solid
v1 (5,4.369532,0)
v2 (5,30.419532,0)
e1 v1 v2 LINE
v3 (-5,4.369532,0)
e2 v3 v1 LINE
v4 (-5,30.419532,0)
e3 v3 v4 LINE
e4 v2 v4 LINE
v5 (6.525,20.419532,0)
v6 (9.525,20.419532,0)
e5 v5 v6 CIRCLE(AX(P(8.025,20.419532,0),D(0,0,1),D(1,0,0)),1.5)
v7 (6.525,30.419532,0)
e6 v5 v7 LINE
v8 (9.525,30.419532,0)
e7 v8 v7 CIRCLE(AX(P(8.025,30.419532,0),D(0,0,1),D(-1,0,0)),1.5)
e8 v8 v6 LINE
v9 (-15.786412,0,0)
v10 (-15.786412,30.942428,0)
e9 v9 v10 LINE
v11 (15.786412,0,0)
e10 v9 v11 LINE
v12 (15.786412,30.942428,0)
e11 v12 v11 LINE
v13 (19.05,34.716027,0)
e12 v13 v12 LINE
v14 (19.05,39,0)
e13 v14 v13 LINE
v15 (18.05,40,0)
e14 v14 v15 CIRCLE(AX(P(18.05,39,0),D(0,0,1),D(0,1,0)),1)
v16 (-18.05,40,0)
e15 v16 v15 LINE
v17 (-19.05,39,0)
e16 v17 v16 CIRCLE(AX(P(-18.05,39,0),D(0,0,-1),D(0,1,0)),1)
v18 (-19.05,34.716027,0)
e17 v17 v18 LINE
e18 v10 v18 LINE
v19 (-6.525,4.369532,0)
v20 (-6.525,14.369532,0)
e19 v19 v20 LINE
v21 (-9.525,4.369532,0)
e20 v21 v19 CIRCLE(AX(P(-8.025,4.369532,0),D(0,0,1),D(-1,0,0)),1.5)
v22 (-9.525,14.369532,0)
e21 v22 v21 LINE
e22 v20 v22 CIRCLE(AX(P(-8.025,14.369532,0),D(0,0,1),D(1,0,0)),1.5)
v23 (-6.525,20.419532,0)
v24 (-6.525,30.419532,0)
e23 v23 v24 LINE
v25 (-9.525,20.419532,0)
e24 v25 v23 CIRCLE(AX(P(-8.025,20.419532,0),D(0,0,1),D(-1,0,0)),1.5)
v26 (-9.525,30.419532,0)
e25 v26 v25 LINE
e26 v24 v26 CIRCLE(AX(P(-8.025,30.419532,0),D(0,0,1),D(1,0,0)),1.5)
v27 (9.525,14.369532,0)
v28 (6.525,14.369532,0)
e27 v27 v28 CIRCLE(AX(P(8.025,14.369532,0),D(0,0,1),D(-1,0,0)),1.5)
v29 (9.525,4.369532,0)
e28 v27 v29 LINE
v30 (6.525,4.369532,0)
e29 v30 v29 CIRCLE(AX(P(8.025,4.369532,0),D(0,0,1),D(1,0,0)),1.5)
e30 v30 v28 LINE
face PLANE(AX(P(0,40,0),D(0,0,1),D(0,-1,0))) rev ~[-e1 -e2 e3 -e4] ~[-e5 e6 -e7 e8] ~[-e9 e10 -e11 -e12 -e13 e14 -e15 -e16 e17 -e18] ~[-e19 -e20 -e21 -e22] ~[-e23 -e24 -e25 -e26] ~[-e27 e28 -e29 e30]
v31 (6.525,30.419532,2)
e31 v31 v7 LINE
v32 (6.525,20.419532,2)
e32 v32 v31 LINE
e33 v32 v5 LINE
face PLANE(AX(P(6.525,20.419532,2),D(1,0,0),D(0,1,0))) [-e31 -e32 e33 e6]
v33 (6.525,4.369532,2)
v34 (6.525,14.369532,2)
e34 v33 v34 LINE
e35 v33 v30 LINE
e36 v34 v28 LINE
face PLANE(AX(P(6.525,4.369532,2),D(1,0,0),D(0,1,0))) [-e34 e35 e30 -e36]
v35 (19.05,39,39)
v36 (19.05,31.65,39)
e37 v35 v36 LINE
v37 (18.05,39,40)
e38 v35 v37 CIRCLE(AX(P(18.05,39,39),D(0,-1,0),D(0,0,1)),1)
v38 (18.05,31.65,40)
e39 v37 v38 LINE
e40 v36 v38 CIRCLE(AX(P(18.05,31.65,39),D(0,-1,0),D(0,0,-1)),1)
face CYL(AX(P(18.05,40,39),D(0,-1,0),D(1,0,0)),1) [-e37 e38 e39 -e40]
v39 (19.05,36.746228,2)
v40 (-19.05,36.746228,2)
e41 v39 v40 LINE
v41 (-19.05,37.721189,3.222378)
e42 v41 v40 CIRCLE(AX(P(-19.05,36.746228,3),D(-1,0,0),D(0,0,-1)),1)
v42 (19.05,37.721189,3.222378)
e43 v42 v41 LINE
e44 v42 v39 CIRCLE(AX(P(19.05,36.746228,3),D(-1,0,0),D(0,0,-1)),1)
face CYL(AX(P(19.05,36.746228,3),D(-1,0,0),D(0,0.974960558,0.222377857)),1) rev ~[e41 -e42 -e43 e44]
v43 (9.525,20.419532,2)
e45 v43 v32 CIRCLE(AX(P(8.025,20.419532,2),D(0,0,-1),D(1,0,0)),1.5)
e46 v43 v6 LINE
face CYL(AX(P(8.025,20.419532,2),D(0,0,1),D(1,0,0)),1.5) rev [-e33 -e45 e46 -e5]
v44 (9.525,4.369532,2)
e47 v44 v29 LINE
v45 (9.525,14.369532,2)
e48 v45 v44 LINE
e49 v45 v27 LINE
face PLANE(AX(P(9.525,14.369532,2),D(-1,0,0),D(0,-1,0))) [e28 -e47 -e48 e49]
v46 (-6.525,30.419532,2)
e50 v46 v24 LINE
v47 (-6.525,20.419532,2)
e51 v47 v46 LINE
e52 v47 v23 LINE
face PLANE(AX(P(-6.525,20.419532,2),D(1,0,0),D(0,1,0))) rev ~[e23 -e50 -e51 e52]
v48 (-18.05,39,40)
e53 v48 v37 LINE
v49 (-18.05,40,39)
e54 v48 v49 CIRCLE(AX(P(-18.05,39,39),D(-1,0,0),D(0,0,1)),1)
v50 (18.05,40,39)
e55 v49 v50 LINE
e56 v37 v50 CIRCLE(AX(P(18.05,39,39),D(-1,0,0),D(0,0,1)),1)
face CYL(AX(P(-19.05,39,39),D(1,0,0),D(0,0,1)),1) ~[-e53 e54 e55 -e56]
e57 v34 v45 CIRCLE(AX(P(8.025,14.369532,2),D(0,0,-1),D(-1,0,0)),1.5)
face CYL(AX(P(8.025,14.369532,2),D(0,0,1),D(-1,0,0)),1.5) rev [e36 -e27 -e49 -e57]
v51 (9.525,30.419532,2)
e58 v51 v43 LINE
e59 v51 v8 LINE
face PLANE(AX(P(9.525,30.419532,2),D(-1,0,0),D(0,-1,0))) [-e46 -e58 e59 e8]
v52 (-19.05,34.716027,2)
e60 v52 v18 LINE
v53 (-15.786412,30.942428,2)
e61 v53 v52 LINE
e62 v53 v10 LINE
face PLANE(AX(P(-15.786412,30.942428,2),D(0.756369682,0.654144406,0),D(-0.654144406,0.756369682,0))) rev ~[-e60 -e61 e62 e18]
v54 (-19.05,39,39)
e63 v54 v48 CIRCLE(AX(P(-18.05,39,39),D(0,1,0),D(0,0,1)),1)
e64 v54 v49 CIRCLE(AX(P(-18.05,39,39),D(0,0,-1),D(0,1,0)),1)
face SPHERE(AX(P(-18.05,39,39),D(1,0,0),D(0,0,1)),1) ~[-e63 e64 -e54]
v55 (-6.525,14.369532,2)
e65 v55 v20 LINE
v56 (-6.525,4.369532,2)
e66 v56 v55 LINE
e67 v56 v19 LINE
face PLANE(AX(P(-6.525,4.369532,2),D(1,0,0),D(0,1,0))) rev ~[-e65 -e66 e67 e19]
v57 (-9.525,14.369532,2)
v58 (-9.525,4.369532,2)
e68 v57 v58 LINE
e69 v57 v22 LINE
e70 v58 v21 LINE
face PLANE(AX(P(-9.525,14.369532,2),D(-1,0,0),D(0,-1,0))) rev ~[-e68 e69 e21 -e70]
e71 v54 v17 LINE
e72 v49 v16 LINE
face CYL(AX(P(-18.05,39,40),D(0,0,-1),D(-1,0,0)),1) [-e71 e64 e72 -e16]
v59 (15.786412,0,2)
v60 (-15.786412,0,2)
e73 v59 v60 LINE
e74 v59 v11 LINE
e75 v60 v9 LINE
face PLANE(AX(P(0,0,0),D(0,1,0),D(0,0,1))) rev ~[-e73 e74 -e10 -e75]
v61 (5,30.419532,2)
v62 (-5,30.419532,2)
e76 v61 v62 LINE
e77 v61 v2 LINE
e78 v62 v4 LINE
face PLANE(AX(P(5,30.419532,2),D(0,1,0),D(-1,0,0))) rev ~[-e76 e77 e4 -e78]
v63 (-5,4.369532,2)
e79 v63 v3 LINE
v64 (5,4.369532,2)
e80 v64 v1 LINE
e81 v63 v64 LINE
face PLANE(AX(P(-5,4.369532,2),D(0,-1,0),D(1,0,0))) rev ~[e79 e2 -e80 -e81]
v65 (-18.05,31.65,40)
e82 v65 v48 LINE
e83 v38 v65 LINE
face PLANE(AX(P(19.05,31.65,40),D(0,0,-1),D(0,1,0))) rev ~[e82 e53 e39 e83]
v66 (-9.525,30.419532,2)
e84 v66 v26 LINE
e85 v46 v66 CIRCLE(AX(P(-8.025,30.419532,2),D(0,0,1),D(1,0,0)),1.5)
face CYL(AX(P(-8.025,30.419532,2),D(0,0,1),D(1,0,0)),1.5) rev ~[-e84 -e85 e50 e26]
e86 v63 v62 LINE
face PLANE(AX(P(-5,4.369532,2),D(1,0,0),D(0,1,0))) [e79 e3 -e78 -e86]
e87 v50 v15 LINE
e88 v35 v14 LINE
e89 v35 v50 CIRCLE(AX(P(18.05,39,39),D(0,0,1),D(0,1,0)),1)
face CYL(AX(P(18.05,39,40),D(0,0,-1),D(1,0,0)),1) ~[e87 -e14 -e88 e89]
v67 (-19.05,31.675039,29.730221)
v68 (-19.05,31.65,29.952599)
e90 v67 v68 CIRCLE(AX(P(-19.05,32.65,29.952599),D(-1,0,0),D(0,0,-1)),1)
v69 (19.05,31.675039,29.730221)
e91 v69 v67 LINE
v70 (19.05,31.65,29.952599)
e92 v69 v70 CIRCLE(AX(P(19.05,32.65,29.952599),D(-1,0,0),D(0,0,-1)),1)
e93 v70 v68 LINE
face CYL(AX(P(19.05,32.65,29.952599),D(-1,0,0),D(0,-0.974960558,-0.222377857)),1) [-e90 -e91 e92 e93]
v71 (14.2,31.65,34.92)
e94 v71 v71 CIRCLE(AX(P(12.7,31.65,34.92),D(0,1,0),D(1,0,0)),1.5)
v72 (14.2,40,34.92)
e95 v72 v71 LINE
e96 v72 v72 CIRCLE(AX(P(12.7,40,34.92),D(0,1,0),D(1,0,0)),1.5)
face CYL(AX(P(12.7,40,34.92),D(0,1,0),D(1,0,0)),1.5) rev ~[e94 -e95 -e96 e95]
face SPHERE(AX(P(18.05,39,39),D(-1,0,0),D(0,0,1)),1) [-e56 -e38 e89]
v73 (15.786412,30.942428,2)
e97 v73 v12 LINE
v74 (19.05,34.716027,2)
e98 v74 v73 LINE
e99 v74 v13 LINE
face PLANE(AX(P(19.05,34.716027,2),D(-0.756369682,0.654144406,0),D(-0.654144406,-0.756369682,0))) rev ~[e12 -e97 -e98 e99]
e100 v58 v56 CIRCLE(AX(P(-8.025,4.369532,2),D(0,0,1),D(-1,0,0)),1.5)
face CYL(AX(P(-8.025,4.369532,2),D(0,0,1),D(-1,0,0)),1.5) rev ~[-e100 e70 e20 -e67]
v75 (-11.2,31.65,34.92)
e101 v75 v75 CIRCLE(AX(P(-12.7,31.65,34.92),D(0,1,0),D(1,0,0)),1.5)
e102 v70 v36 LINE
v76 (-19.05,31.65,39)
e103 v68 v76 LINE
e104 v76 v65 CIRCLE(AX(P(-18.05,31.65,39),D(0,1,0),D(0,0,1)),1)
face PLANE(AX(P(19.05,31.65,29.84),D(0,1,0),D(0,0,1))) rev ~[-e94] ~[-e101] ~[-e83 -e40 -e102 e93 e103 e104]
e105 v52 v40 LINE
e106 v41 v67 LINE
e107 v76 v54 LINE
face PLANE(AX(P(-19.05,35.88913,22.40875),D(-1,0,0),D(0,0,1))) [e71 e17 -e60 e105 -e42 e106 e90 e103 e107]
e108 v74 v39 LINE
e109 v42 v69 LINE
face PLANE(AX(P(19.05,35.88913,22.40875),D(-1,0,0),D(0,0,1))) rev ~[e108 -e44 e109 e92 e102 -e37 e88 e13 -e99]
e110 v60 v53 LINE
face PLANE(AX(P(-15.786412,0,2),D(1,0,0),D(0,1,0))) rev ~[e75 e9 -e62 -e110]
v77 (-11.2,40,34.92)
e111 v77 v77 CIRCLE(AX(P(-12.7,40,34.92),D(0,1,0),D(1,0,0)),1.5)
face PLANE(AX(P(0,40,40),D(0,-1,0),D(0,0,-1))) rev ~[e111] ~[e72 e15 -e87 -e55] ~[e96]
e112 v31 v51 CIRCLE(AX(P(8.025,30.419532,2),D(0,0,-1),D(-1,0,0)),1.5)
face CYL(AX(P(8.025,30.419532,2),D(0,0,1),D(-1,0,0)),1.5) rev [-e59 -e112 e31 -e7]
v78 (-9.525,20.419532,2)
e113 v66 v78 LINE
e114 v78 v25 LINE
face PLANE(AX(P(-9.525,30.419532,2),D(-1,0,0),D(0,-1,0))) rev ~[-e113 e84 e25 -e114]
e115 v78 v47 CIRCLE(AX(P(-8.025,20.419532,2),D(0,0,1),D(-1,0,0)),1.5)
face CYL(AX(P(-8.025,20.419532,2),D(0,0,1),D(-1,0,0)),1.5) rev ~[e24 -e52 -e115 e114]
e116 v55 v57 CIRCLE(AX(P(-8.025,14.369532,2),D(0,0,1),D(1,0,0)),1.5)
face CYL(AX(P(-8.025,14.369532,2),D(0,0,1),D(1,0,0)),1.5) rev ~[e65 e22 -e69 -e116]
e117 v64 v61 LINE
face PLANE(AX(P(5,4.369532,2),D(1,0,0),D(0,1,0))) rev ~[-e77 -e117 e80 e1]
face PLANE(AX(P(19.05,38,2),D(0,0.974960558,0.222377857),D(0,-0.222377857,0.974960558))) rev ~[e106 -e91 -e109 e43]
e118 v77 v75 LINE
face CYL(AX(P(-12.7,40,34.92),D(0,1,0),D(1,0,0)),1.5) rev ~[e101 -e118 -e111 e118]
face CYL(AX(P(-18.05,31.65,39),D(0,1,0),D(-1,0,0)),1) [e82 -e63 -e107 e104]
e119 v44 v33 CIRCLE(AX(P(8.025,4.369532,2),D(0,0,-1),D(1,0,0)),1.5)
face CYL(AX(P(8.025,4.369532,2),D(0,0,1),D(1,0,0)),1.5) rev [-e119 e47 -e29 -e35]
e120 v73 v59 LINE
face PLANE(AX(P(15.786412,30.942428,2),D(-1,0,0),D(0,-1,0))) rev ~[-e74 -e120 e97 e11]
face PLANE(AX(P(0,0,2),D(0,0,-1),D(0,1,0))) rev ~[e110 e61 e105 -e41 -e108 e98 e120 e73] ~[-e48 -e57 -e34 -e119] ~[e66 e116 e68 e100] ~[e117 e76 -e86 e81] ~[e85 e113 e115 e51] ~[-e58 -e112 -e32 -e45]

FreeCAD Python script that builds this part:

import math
import FreeCAD as App
import Part
import Sketcher
Q = App.Units.Quantity


def edges_at(feature, points):
    """Names of the edges that pass closest to the given points."""
    edges = feature.Shape.Edges
    near = lambda p: min(range(len(edges)), key=lambda i: edges[i].distToShape(Part.Vertex(*p))[0])
    return sorted({f"Edge{near(p) + 1}" for p in points})

doc = App.newDocument("Part")
body = doc.addObject("PartDesign::Body", "Body")

# Sketch on YZ plane
sketch1 = doc.addObject("Sketcher::SketchObject", "Sketch")
body.addObject(sketch1)
sketch1.AttachmentSupport = (doc.YZ_Plane, [""])
sketch1.MapMode = "FlatFace"
sketch1.addGeometry([
    Part.LineSegment(App.Vector(0, 2, 0), App.Vector(0, 0, 0)),  # 0
    Part.LineSegment(App.Vector(0, 0, 0), App.Vector(40, 0, 0)),  # 1
    Part.LineSegment(App.Vector(40, 0, 0), App.Vector(40, 40, 0)),  # 2
    Part.LineSegment(App.Vector(40, 40, 0), App.Vector(38, 40, 0)),  # 3
    Part.LineSegment(App.Vector(38, 40, 0), App.Vector(38, 2, 0)),  # 4
    Part.LineSegment(App.Vector(38, 2, 0), App.Vector(0, 2, 0)),  # 5
], False)
sketch1.addConstraint([
    Sketcher.Constraint("Coincident", 0, 2, 1, 1),
    Sketcher.Constraint("Coincident", 1, 2, 2, 1),
    Sketcher.Constraint("Coincident", 2, 2, 3, 1),
    Sketcher.Constraint("Coincident", 3, 2, 4, 1),
    Sketcher.Constraint("Coincident", 4, 2, 5, 1),
    Sketcher.Constraint("Coincident", 5, 2, 0, 1),
    Sketcher.Constraint("Vertical", 0),
    Sketcher.Constraint("Horizontal", 1),
    Sketcher.Constraint("Vertical", 2),
    Sketcher.Constraint("Horizontal", 3),
    Sketcher.Constraint("Vertical", 4),
    Sketcher.Constraint("Horizontal", 5),
    Sketcher.Constraint("Coincident", 0, 2, -1, 1),
    Sketcher.Constraint("Equal", 3, 0),
    Sketcher.Constraint("Equal", 1, 2),
    Sketcher.Constraint("DistanceX", 1, 1, 1, 2, Q("40 mm")),
    Sketcher.Constraint("DistanceX", 3, 2, 3, 1, Q("2 mm")),
])
pad1 = doc.addObject("PartDesign::Pad", "Pad")
body.addObject(pad1)
pad1.Profile = sketch1
pad1.Length = 38.1
pad1.Midplane = True

# Sketch on XY plane
sketch2 = doc.addObject("Sketcher::SketchObject", "Sketch001")
body.addObject(sketch2)
sketch2.AttachmentSupport = (doc.XY_Plane, [""])
sketch2.MapMode = "FlatFace"
sketch2.AttachmentOffset = App.Placement(App.Vector(0, 0, 2), App.Rotation())
sketch2.addGeometry([
    Part.LineSegment(App.Vector(5, 4.4, 0), App.Vector(5, 30.4, 0)),  # 0
    Part.LineSegment(App.Vector(5, 30.4, 0), App.Vector(-5, 30.4, 0)),  # 1
    Part.LineSegment(App.Vector(-5, 30.4, 0), App.Vector(-5, 4.4, 0)),  # 2
    Part.LineSegment(App.Vector(-5, 4.4, 0), App.Vector(5, 4.4, 0)),  # 3
    Part.LineSegment(App.Vector(-9.5, 30.4, 0), App.Vector(-9.5, 20.4, 0)),  # 4
    Part.ArcOfCircle(Part.Circle(App.Vector(-8, 20.4, 0), App.Vector(0, 0, 1), 1.5), math.radians(180), math.radians(360)),  # 5
    Part.LineSegment(App.Vector(-6.5, 20.4, 0), App.Vector(-6.5, 30.4, 0)),  # 6
    Part.ArcOfCircle(Part.Circle(App.Vector(-8, 30.4, 0), App.Vector(0, 0, 1), 1.5), math.radians(0), math.radians(180)),  # 7
    Part.LineSegment(App.Vector(-9.5, 14.4, 0), App.Vector(-9.5, 4.4, 0)),  # 8
    Part.ArcOfCircle(Part.Circle(App.Vector(-8, 4.4, 0), App.Vector(0, 0, 1), 1.5), math.radians(180), math.radians(360)),  # 9
    Part.LineSegment(App.Vector(-6.5, 4.4, 0), App.Vector(-6.5, 14.4, 0)),  # 10
    Part.ArcOfCircle(Part.Circle(App.Vector(-8, 14.4, 0), App.Vector(0, 0, 1), 1.5), math.radians(0), math.radians(180)),  # 11
    Part.ArcOfCircle(Part.Circle(App.Vector(8, 20.4, 0), App.Vector(0, 0, 1), 1.5), math.radians(180), math.radians(360)),  # 12
    Part.LineSegment(App.Vector(9.5, 20.4, 0), App.Vector(9.5, 30.4, 0)),  # 13
    Part.ArcOfCircle(Part.Circle(App.Vector(8, 30.4, 0), App.Vector(0, 0, 1), 1.5), math.radians(0), math.radians(180)),  # 14
    Part.LineSegment(App.Vector(6.5, 30.4, 0), App.Vector(6.5, 20.4, 0)),  # 15
    Part.ArcOfCircle(Part.Circle(App.Vector(8, 4.4, 0), App.Vector(0, 0, 1), 1.5), math.radians(180), math.radians(360)),  # 16
    Part.LineSegment(App.Vector(9.5, 4.4, 0), App.Vector(9.5, 14.4, 0)),  # 17
    Part.ArcOfCircle(Part.Circle(App.Vector(8, 14.4, 0), App.Vector(0, 0, 1), 1.5), math.radians(0), math.radians(180)),  # 18
    Part.LineSegment(App.Vector(6.5, 14.4, 0), App.Vector(6.5, 4.4, 0)),  # 19
    Part.LineSegment(App.Vector(-15.8, 30.9, 0), App.Vector(-19.1, 34.7, 0)),  # 20
    Part.LineSegment(App.Vector(-19.1, 34.7, 0), App.Vector(-19.1, 0, 0)),  # 21
    Part.LineSegment(App.Vector(-19.1, 0, 0), App.Vector(-15.8, 0, 0)),  # 22
    Part.LineSegment(App.Vector(-15.8, 0, 0), App.Vector(-15.8, 30.9, 0)),  # 23
    Part.LineSegment(App.Vector(15.8, 30.9, 0), App.Vector(15.8, 0, 0)),  # 24
    Part.LineSegment(App.Vector(15.8, 0, 0), App.Vector(19.1, 0, 0)),  # 25
    Part.LineSegment(App.Vector(19.1, 0, 0), App.Vector(19.1, 34.7, 0)),  # 26
    Part.LineSegment(App.Vector(19.1, 34.7, 0), App.Vector(15.8, 30.9, 0)),  # 27
], False)
sketch2.addConstraint([
    Sketcher.Constraint("Coincident", 0, 2, 1, 1),
    Sketcher.Constraint("Coincident", 1, 2, 2, 1),
    Sketcher.Constraint("Coincident", 2, 2, 3, 1),
    Sketcher.Constraint("Coincident", 3, 2, 0, 1),
    Sketcher.Constraint("Tangent", 4, 2, 5, 1),
    Sketcher.Constraint("Tangent", 5, 2, 6, 1),
    Sketcher.Constraint("Tangent", 6, 2, 7, 1),
    Sketcher.Constraint("Tangent", 7, 2, 4, 1),
    Sketcher.Constraint("Tangent", 8, 2, 9, 1),
    Sketcher.Constraint("Tangent", 9, 2, 10, 1),
    Sketcher.Constraint("Tangent", 10, 2, 11, 1),
    Sketcher.Constraint("Tangent", 11, 2, 8, 1),
    Sketcher.Constraint("Tangent", 12, 2, 13, 1),
    Sketcher.Constraint("Tangent", 13, 2, 14, 1),
    Sketcher.Constraint("Tangent", 14, 2, 15, 1),
    Sketcher.Constraint("Tangent", 15, 2, 12, 1),
    Sketcher.Constraint("Tangent", 16, 2, 17, 1),
    Sketcher.Constraint("Tangent", 17, 2, 18, 1),
    Sketcher.Constraint("Tangent", 18, 2, 19, 1),
    Sketcher.Constraint("Tangent", 19, 2, 16, 1),
    Sketcher.Constraint("Coincident", 20, 2, 21, 1),
    Sketcher.Constraint("Coincident", 21, 2, 22, 1),
    Sketcher.Constraint("Coincident", 22, 2, 23, 1),
    Sketcher.Constraint("Coincident", 23, 2, 20, 1),
    Sketcher.Constraint("Coincident", 24, 2, 25, 1),
    Sketcher.Constraint("Coincident", 25, 2, 26, 1),
    Sketcher.Constraint("Coincident", 26, 2, 27, 1),
    Sketcher.Constraint("Coincident", 27, 2, 24, 1),
    Sketcher.Constraint("Vertical", 0),
    Sketcher.Constraint("Horizontal", 1),
    Sketcher.Constraint("Vertical", 2),
    Sketcher.Constraint("Horizontal", 3),
    Sketcher.Constraint("Vertical", 4),
    Sketcher.Constraint("Vertical", 6),
    Sketcher.Constraint("Vertical", 8),
    Sketcher.Constraint("Vertical", 10),
    Sketcher.Constraint("Vertical", 13),
    Sketcher.Constraint("Vertical", 15),
    Sketcher.Constraint("Vertical", 17),
    Sketcher.Constraint("Vertical", 19),
    Sketcher.Constraint("Vertical", 21),
    Sketcher.Constraint("Horizontal", 22),
    Sketcher.Constraint("Vertical", 23),
    Sketcher.Constraint("Vertical", 24),
    Sketcher.Constraint("Horizontal", 25),
    Sketcher.Constraint("Vertical", 26),
    Sketcher.Constraint("Equal", 7, 9),
    Sketcher.Constraint("Equal", 11, 12),
    Sketcher.Constraint("Equal", 14, 16),
    Sketcher.Constraint("Symmetric", 22, 2, 24, 2, -1, 1),
    Sketcher.Constraint("Symmetric", 5, 3, 12, 3, -2),
    Sketcher.Constraint("Symmetric", 9, 3, 16, 3, -2),
    Sketcher.Constraint("Symmetric", 21, 2, 25, 2, -2),
    Sketcher.Constraint("Horizontal", 7, 3, 14, 3),
    Sketcher.Constraint("Horizontal", 11, 3, 18, 3),
    Sketcher.Constraint("Horizontal", 14, 3, 0, 2),
    Sketcher.Constraint("Horizontal", 16, 3, 2, 2),
    Sketcher.Constraint("Horizontal", 20, 2, 26, 2),
    Sketcher.Constraint("Horizontal", 23, 2, 27, 2),
    Sketcher.Constraint("Vertical", 7, 3, 9, 3),
    Sketcher.Constraint("Equal", 3, 4),
    Sketcher.Constraint("Equal", 6, 8),
    Sketcher.Constraint("Radius", 5, Q("1.5 mm")),
    Sketcher.Constraint("DistanceX", 1, 2, 1, 1, Q("10 mm")),
    Sketcher.Constraint("DistanceX", -1, 1, 0, 2, Q("5 mm")),
    Sketcher.Constraint("DistanceY", 0, 1, 0, 2, Q("26.05 mm")),
    Sketcher.Constraint("DistanceX", 20, 2, -1, 1, Q("19.05 mm")),
    Sketcher.Constraint("DistanceX", 5, 3, 12, 3, Q("16.05 mm")),
    Sketcher.Constraint("DistanceY", 23, 2, 20, 2, Q("3.773599 mm")),
    Sketcher.Constraint("DistanceX", 22, 1, 22, 2, Q("3.263588 mm")),
    Sketcher.Constraint("DistanceY", 21, 2, 21, 1, Q("34.716027 mm")),
    Sketcher.Constraint("DistanceY", -1, 1, 5, 3, Q("20.419532 mm")),
])
pocket1 = doc.addObject("PartDesign::Pocket", "Pocket")
body.addObject(pocket1)
pocket1.Profile = sketch2
pocket1.Type = "ThroughAll"

# Sketch on YZ plane
sketch3 = doc.addObject("Sketcher::SketchObject", "Sketch002")
body.addObject(sketch3)
sketch3.AttachmentSupport = (doc.YZ_Plane, [""])
sketch3.MapMode = "FlatFace"
sketch3.AttachmentOffset = App.Placement(App.Vector(0, 0, 19.05), App.Rotation())
sketch3.addGeometry([
    Part.LineSegment(App.Vector(32, 30, 0), App.Vector(38, 2, 0)),
    Part.LineSegment(App.Vector(38, 2, 0), App.Vector(38, 40, 0)),
    Part.LineSegment(App.Vector(38, 40, 0), App.Vector(32, 40, 0)),
    Part.LineSegment(App.Vector(32, 40, 0), App.Vector(32, 30, 0)),
], False)
sketch3.addConstraint([
    Sketcher.Constraint("Coincident", 0, 2, 1, 1),
    Sketcher.Constraint("Coincident", 1, 2, 2, 1),
    Sketcher.Constraint("Coincident", 2, 2, 3, 1),
    Sketcher.Constraint("Coincident", 3, 2, 0, 1),
    Sketcher.Constraint("Vertical", 1),
    Sketcher.Constraint("Horizontal", 2),
    Sketcher.Constraint("Vertical", 3),
    Sketcher.Constraint("DistanceY", 1, 1, 1, 2, Q("38 mm")),
    Sketcher.Constraint("DistanceX", -1, 1, 0, 2, Q("38 mm")),
    Sketcher.Constraint("DistanceY", -1, 1, 0, 2, Q("2 mm")),
    Sketcher.Constraint("DistanceX", 2, 2, 2, 1, Q("6.35 mm")),
    Sketcher.Constraint("DistanceY", 3, 2, 3, 1, Q("10.16 mm")),
])
pad2 = doc.addObject("PartDesign::Pad", "Pad001")
body.addObject(pad2)
pad2.Profile = sketch3
pad2.Length = 38.1
pad2.Reversed = True

# Sketch on XZ plane
sketch4 = doc.addObject("Sketcher::SketchObject", "Sketch003")
body.addObject(sketch4)
sketch4.AttachmentSupport = (doc.XZ_Plane, [""])
sketch4.MapMode = "FlatFace"
sketch4.AttachmentOffset = App.Placement(App.Vector(0, 0, -40), App.Rotation())
sketch4.addGeometry([
    Part.Circle(App.Vector(-12.7, 34.9, 0), App.Vector(0, 0, 1), 1.5),
    Part.Circle(App.Vector(12.7, 34.9, 0), App.Vector(0, 0, 1), 1.5),
], False)
sketch4.addConstraint([
    Sketcher.Constraint("Equal", 0, 1),
    Sketcher.Constraint("Symmetric", 0, 3, 1, 3, -2),
    Sketcher.Constraint("Diameter", 0, Q("3 mm")),
    Sketcher.Constraint("DistanceX", 0, 3, -1, 1, Q("12.7 mm")),
    Sketcher.Constraint("DistanceY", -1, 1, 0, 3, Q("34.92 mm")),
])
pocket2 = doc.addObject("PartDesign::Pocket", "Pocket001")
body.addObject(pocket2)
pocket2.Profile = sketch4
pocket2.Length = 8.35
pocket2.Reversed = True
doc.recompute()

fillet = doc.addObject("PartDesign::Fillet", "Fillet")
body.addObject(fillet)
fillet.Base = (pocket2, edges_at(pocket2, [
    (0, 38, 2),
    (0, 40, 40),
    (0, 31.65, 29.84),
    (19.05, 35.825, 40),
    (-19.05, 35.825, 40),
    (-19.05, 40, 20),
    (19.05, 40, 20),
]))
fillet.Radius = 1

doc.recompute()
